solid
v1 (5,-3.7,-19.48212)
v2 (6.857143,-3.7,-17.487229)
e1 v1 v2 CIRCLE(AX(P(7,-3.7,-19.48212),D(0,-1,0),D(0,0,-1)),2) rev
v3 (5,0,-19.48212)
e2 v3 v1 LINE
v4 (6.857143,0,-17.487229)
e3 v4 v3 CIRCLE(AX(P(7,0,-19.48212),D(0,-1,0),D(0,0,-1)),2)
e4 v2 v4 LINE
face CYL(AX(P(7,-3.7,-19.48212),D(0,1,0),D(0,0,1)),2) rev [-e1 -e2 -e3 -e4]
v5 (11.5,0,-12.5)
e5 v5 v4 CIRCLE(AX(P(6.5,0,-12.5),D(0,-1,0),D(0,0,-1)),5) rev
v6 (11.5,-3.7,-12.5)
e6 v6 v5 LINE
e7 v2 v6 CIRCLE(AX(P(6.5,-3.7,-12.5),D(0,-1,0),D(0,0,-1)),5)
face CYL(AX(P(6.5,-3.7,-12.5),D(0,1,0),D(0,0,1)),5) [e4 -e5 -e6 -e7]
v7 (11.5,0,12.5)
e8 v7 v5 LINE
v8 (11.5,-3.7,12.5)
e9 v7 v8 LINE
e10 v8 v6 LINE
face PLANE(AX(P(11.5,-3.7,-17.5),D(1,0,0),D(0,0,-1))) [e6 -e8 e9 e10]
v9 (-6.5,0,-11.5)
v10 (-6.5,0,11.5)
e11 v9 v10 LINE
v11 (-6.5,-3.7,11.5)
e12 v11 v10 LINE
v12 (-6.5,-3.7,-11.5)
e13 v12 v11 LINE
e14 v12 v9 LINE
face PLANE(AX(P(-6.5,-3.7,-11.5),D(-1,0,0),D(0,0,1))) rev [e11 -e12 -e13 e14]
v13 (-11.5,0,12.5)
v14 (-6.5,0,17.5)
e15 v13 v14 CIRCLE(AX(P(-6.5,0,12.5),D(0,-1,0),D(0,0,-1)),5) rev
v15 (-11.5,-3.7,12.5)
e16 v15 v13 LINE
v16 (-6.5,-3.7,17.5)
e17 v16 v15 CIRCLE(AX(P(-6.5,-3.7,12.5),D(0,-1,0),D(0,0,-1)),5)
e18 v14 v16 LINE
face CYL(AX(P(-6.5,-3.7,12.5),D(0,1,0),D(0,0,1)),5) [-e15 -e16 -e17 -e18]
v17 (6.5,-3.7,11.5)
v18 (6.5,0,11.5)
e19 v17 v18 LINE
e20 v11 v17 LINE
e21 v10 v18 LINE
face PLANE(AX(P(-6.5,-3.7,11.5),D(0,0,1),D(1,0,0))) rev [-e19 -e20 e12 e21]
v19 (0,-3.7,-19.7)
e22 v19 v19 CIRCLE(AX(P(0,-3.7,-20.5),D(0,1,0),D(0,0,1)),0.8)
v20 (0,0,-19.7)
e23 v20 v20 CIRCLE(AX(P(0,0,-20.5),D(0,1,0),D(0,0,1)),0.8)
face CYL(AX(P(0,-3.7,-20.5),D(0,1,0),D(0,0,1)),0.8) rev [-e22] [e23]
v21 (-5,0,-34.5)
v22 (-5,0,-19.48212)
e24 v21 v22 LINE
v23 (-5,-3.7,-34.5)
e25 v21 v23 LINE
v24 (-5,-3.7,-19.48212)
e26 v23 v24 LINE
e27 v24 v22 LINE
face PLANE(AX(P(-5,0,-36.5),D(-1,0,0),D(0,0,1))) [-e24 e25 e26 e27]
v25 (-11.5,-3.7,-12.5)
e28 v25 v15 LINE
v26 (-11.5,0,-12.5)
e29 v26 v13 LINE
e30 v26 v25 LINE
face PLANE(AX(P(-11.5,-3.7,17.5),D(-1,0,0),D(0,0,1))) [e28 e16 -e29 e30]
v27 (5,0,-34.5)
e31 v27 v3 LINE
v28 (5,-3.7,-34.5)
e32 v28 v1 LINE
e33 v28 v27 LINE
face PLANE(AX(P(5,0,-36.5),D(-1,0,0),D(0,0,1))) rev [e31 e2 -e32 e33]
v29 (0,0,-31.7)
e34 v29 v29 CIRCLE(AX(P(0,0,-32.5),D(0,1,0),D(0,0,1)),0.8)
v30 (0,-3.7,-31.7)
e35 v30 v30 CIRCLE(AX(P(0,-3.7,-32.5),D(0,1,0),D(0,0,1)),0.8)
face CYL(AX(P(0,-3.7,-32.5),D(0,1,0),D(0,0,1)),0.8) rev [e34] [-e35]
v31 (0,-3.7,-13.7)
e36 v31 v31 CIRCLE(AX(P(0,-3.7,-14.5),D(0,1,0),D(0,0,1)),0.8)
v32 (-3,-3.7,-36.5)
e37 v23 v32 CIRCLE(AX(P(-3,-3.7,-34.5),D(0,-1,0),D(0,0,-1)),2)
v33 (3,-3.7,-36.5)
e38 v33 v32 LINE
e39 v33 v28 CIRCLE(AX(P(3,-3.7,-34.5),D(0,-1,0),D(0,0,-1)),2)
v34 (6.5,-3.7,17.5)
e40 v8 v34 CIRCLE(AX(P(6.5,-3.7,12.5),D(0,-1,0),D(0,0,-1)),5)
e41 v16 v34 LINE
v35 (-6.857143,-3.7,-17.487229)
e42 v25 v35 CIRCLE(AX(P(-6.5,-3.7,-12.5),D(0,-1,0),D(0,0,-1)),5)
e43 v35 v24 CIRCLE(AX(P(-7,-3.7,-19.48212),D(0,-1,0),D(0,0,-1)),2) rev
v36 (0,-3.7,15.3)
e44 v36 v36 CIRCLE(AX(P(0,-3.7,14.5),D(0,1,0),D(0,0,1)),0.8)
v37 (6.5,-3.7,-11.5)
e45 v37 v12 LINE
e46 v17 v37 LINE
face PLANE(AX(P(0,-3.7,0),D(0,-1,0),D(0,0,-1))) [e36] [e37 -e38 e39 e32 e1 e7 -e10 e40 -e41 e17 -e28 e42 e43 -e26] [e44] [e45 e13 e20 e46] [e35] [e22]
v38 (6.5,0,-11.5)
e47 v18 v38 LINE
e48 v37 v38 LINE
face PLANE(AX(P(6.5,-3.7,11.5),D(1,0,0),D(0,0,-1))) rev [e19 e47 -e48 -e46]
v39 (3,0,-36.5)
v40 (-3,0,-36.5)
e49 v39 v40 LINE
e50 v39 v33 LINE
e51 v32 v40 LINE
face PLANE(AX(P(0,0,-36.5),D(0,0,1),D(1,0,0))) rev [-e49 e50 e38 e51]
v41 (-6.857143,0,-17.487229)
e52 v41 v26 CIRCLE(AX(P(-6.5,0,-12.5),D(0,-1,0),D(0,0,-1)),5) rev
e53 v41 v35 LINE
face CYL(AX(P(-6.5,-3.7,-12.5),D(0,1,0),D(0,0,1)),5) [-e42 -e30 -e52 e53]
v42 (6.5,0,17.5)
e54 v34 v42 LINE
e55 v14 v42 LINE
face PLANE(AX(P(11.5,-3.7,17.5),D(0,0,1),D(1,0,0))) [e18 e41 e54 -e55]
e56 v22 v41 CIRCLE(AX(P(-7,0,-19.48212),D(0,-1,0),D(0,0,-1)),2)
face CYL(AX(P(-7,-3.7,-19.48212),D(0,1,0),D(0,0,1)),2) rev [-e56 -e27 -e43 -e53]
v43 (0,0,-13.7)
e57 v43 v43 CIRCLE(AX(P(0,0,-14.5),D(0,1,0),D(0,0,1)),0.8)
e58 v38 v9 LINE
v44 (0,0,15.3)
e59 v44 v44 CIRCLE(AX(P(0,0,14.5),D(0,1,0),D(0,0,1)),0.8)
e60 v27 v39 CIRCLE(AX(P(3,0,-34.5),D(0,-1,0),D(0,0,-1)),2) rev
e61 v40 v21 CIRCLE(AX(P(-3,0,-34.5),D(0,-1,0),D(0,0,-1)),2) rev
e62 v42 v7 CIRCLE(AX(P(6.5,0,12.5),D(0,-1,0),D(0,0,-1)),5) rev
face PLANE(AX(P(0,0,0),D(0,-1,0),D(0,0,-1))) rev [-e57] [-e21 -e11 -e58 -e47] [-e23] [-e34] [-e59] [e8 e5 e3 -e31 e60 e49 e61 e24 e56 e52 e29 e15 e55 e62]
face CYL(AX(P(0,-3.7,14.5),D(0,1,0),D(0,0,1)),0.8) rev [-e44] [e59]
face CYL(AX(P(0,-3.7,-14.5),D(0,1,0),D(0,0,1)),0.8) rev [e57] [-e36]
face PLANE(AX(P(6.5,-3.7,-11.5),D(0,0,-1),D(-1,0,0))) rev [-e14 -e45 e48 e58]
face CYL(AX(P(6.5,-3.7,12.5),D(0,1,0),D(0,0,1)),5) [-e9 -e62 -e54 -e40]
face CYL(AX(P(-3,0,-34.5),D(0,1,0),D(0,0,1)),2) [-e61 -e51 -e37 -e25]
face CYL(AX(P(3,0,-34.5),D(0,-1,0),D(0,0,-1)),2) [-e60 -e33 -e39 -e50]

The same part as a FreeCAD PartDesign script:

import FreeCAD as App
import Part
import Sketcher


def edges_at(feature, points):
    """Names of the edges that pass closest to the given points."""
    edges = feature.Shape.Edges
    near = lambda p: min(range(len(edges)), key=lambda i: edges[i].distToShape(Part.Vertex(*p))[0])
    return sorted({f"Edge{near(p) + 1}" for p in points})

doc = App.newDocument("Part")
body = doc.addObject("PartDesign::Body", "Body")

# Sketch on XZ plane
sketch1 = doc.addObject("Sketcher::SketchObject", "Sketch")
body.addObject(sketch1)
sketch1.AttachmentSupport = (doc.XZ_Plane, [""])
sketch1.MapMode = "FlatFace"
sketch1.addGeometry([
    Part.LineSegment(App.Vector(-11.5, -17.5, 0), App.Vector(-11.5, 17.5, 0)),  # 0
    Part.LineSegment(App.Vector(-11.5, 17.5, 0), App.Vector(11.5, 17.5, 0)),  # 1
    Part.LineSegment(App.Vector(11.5, 17.5, 0), App.Vector(11.5, -17.5, 0)),  # 2
    Part.LineSegment(App.Vector(11.5, -17.5, 0), App.Vector(-11.5, -17.5, 0)),  # 3
    Part.LineSegment(App.Vector(6.5, 11.5, 0), App.Vector(-6.5, 11.5, 0)),  # 4
    Part.LineSegment(App.Vector(-6.5, 11.5, 0), App.Vector(-6.5, -11.5, 0)),  # 5
    Part.LineSegment(App.Vector(-6.5, -11.5, 0), App.Vector(6.5, -11.5, 0)),  # 6
    Part.LineSegment(App.Vector(6.5, -11.5, 0), App.Vector(6.5, 11.5, 0)),  # 7
], False)
sketch1.addConstraint([
    Sketcher.Constraint("Coincident", 0, 2, 1, 1),
    Sketcher.Constraint("Coincident", 1, 2, 2, 1),
    Sketcher.Constraint("Coincident", 2, 2, 3, 1),
    Sketcher.Constraint("Coincident", 3, 2, 0, 1),
    Sketcher.Constraint("Coincident", 4, 2, 5, 1),
    Sketcher.Constraint("Coincident", 5, 2, 6, 1),
    Sketcher.Constraint("Coincident", 6, 2, 7, 1),
    Sketcher.Constraint("Coincident", 7, 2, 4, 1),
    Sketcher.Constraint("Vertical", 0),
    Sketcher.Constraint("Horizontal", 1),
    Sketcher.Constraint("Vertical", 2),
    Sketcher.Constraint("Horizontal", 3),
    Sketcher.Constraint("Horizontal", 4),
    Sketcher.Constraint("Vertical", 5),
    Sketcher.Constraint("Horizontal", 6),
    Sketcher.Constraint("Vertical", 7),
    Sketcher.Constraint("Symmetric", 0, 2, 2, 2, -1, 1),
    Sketcher.Constraint("Symmetric", 4, 2, 6, 2, -1, 1),
    Sketcher.Constraint("Equal", 3, 5),
    Sketcher.Constraint("DistanceX", 1, 1, 1, 2, 23.0),
    Sketcher.Constraint("DistanceX", 4, 2, 4, 1, 13.0),
    Sketcher.Constraint("DistanceY", 0, 1, 0, 2, 35.0),
])
pad1 = doc.addObject("PartDesign::Pad", "Pad")
body.addObject(pad1)
pad1.Profile = sketch1
pad1.Length = 3.7

# Sketch on XZ plane
sketch2 = doc.addObject("Sketcher::SketchObject", "Sketch001")
body.addObject(sketch2)
sketch2.AttachmentSupport = (doc.XZ_Plane, [""])
sketch2.MapMode = "FlatFace"
sketch2.addGeometry([
    Part.Circle(App.Vector(0, -14.5, 0), App.Vector(0, 0, 1), 0.8),
    Part.Circle(App.Vector(0, 14.5, 0), App.Vector(0, 0, 1), 0.8),
], False)
sketch2.addConstraint([
    Sketcher.Constraint("Equal", 0, 1),
    Sketcher.Constraint("Symmetric", 0, 3, 1, 3, -1, 1),
    Sketcher.Constraint("PointOnObject", 0, 3, -2),
    Sketcher.Constraint("Diameter", 0, 1.6),
    Sketcher.Constraint("DistanceY", 0, 3, 1, 3, 29.0),
])
pocket1 = doc.addObject("PartDesign::Pocket", "Pocket")
body.addObject(pocket1)
pocket1.Profile = sketch2
pocket1.Type = "ThroughAll"
pocket1.Reversed = True

# Sketch on XY plane
sketch3 = doc.addObject("Sketcher::SketchObject", "Sketch002")
body.addObject(sketch3)
sketch3.AttachmentSupport = (doc.XY_Plane, [""])
sketch3.MapMode = "FlatFace"
sketch3.AttachmentOffset = App.Placement(App.Vector(0, 0, -17.5), App.Rotation())
sketch3.addGeometry([
    Part.LineSegment(App.Vector(5, 0, 0), App.Vector(5, -3.7, 0)),
    Part.LineSegment(App.Vector(5, -3.7, 0), App.Vector(-5, -3.7, 0)),
    Part.LineSegment(App.Vector(-5, -3.7, 0), App.Vector(-5, 0, 0)),
    Part.LineSegment(App.Vector(-5, 0, 0), App.Vector(5, 0, 0)),
], False)
sketch3.addConstraint([
    Sketcher.Constraint("Coincident", 0, 2, 1, 1),
    Sketcher.Constraint("Coincident", 1, 2, 2, 1),
    Sketcher.Constraint("Coincident", 2, 2, 3, 1),
    Sketcher.Constraint("Coincident", 3, 2, 0, 1),
    Sketcher.Constraint("Vertical", 0),
    Sketcher.Constraint("Horizontal", 1),
    Sketcher.Constraint("Vertical", 2),
    Sketcher.Constraint("Horizontal", 3),
    Sketcher.Constraint("Symmetric", 2, 2, 3, 2, -1, 1),
    Sketcher.Constraint("DistanceX", 1, 2, 1, 1, 10.0),
    Sketcher.Constraint("DistanceY", 0, 2, 0, 1, 3.7),
])
pad2 = doc.addObject("PartDesign::Pad", "Pad001")
body.addObject(pad2)
pad2.Profile = sketch3
pad2.Length = 19
pad2.Reversed = True

# Sketch on XZ plane
sketch4 = doc.addObject("Sketcher::SketchObject", "Sketch003")
body.addObject(sketch4)
sketch4.AttachmentSupport = (doc.XZ_Plane, [""])
sketch4.MapMode = "FlatFace"
sketch4.addGeometry([
    Part.Circle(App.Vector(0, -32.5, 0), App.Vector(0, 0, 1), 0.8),
    Part.Circle(App.Vector(0, -20.5, 0), App.Vector(0, 0, 1), 0.8),
], False)
sketch4.addConstraint([
    Sketcher.Constraint("Equal", 0, 1),
    Sketcher.Constraint("PointOnObject", 0, 3, -2),
    Sketcher.Constraint("PointOnObject", 1, 3, -2),
    Sketcher.Constraint("Diameter", 0, 1.6),
    Sketcher.Constraint("DistanceY", 0, 3, 1, 3, 12.0),
    Sketcher.Constraint("DistanceY", 0, 3, -1, 1, 32.5),
])
pocket2 = doc.addObject("PartDesign::Pocket", "Pocket001")
body.addObject(pocket2)
pocket2.Profile = sketch4
pocket2.Type = "ThroughAll"
pocket2.Reversed = True
doc.recompute()

fillet = doc.addObject("PartDesign::Fillet", "Fillet")
body.addObject(fillet)
fillet.Base = (pocket2, edges_at(pocket2, [
    (11.5, -1.85, 17.5),
    (-11.5, -1.85, 17.5),
    (-11.5, -1.85, -17.5),
    (11.5, -1.85, -17.5),
]))
fillet.Radius = 5
doc.recompute()

fillet2 = doc.addObject("PartDesign::Fillet", "Fillet001")
body.addObject(fillet2)
fillet2.Base = (fillet, edges_at(fillet, [
    (5, -1.85, -17.5),
    (-5, -1.85, -17.5),
    (5, -1.85, -36.5),
    (-5, -1.85, -36.5),
]))
fillet2.Radius = 2

doc.recompute()
